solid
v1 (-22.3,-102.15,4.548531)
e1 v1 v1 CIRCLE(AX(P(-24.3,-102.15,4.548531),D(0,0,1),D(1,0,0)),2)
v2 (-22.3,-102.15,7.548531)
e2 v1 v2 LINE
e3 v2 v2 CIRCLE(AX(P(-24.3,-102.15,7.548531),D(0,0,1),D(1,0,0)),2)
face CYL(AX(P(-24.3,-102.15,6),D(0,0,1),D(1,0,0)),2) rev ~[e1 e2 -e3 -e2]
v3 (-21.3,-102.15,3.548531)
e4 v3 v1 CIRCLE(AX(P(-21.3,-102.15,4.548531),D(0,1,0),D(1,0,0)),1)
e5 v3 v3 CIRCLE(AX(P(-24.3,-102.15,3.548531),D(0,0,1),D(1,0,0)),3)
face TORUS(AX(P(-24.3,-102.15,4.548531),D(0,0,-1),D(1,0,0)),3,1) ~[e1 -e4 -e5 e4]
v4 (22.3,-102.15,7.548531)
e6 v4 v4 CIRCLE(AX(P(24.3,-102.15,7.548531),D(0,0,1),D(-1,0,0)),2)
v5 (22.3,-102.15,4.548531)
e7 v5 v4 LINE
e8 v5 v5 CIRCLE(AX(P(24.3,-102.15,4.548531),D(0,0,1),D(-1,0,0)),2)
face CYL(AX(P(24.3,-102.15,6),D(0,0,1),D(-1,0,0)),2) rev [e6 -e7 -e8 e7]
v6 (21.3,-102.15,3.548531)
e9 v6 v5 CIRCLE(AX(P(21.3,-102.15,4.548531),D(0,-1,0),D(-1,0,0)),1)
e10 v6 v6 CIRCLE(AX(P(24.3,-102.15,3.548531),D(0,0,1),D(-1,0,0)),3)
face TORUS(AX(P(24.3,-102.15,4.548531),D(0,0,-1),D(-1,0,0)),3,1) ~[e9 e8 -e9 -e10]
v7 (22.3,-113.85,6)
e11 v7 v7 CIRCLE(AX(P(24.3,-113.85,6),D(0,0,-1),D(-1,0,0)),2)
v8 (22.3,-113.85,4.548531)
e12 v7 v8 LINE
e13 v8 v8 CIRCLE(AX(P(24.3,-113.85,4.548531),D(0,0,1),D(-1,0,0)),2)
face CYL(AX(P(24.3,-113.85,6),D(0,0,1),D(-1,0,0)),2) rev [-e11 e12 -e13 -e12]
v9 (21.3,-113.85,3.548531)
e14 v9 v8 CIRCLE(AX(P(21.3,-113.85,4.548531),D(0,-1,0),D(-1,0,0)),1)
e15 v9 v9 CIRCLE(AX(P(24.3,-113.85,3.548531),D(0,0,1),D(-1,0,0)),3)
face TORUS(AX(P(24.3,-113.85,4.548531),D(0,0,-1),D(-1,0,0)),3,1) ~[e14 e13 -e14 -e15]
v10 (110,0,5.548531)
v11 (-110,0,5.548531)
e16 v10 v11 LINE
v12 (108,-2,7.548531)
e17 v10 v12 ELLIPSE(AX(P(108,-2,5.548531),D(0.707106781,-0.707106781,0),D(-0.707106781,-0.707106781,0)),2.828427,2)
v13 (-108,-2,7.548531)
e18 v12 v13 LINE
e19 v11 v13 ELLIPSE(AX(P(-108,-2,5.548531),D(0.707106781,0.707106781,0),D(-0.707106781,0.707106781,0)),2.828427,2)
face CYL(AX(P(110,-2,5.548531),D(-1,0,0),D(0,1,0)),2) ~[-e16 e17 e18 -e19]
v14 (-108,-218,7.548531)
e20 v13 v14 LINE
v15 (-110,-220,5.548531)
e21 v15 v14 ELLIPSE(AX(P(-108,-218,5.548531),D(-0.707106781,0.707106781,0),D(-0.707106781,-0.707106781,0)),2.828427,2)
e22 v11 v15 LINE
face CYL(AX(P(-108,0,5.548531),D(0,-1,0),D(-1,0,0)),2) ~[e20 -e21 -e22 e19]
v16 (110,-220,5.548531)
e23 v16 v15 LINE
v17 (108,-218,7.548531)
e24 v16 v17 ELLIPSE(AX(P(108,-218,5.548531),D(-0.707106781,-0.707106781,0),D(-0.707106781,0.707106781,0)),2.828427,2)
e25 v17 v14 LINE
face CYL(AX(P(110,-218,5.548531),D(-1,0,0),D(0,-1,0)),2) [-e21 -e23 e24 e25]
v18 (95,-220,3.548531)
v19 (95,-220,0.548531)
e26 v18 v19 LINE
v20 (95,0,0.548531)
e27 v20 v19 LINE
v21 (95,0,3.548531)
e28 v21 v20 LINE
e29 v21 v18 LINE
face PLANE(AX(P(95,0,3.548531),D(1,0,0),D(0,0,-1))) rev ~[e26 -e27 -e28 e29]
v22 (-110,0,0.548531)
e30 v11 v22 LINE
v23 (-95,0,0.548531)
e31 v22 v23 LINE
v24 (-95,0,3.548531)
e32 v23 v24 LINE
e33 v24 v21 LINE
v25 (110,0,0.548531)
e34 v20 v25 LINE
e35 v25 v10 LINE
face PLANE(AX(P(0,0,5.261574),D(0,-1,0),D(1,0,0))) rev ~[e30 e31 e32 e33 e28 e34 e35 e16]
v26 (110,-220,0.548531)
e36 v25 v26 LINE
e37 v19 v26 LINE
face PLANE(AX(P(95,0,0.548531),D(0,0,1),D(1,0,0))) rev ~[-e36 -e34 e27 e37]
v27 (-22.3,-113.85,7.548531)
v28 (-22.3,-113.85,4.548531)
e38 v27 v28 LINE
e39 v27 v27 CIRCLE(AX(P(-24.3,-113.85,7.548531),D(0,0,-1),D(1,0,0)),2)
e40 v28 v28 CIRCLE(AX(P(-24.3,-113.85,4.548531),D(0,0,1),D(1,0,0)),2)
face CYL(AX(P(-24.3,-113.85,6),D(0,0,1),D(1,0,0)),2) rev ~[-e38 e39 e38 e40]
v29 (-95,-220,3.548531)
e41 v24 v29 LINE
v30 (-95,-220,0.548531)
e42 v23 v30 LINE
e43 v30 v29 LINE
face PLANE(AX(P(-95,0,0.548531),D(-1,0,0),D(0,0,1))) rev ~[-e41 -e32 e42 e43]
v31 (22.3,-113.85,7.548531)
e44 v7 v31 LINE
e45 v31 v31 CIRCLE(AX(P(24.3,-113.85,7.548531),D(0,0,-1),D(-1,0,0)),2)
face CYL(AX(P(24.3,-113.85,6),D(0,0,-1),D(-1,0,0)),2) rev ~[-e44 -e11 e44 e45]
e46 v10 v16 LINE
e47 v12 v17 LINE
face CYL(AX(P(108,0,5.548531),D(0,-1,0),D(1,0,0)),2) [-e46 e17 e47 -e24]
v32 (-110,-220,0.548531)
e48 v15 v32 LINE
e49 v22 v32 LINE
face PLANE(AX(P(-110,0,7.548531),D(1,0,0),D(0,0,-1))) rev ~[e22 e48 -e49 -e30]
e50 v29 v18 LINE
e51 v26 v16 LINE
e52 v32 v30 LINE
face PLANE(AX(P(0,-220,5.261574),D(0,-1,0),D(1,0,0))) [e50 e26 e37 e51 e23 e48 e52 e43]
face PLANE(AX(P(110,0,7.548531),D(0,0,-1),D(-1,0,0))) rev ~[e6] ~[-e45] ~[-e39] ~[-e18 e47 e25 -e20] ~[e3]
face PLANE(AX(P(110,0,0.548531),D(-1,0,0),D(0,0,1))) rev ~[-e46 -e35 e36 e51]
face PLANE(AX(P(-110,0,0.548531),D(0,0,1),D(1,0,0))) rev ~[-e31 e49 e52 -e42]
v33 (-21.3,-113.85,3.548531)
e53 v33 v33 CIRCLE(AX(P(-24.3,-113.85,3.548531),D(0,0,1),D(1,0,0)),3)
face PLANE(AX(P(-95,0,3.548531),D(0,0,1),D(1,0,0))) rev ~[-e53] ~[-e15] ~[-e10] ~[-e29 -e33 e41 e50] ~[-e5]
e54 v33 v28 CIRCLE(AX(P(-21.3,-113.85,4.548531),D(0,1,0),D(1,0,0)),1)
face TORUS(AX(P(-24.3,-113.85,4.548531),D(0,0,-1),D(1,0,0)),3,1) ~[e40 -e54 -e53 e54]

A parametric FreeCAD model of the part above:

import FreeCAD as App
import Part
import Sketcher
Q = App.Units.Quantity


def edges_at(feature, points):
    """Names of the edges that pass closest to the given points."""
    edges = feature.Shape.Edges
    near = lambda p: min(range(len(edges)), key=lambda i: edges[i].distToShape(Part.Vertex(*p))[0])
    return sorted({f"Edge{near(p) + 1}" for p in points})


def add_polygon(sketch, points):
    """Adds a closed chain of lines whose ends are joined by coincident constraints."""
    first, n = sketch.GeometryCount, len(points)
    for a, b in zip(points, points[1:] + points[:1]):
        sketch.addGeometry(Part.LineSegment(App.Vector(*a, 0), App.Vector(*b, 0)), False)
    for i in range(n):
        sketch.addConstraint(Sketcher.Constraint("Coincident", first + i, 2, first + (i + 1) % n, 1))

doc = App.newDocument("Part")
params = doc.addObject("Spreadsheet::Sheet", "Params")
for row, (alias, value) in enumerate([
    ("sketch1_width", "190 mm"),
    ("sketch1_width2", "15 mm"),
    ("sketch1_height", "3 mm"),
    ("sketch1_height2", "7 mm"),
    ("pad1_length", "220 mm"),
    ("sketch2_diameter", "4 mm"),
    ("pocket1_length", "11 mm"),
    ("fillet_radius", "2 mm"),
    ("fillet2_radius", "1 mm"),
], start=1):
    params.set(f"A{row}", alias)
    params.set(f"B{row}", "=" + value)
    params.setAlias(f"B{row}", alias)

body = doc.addObject("PartDesign::Body", "Body")

# Sketch on XZ plane
sketch1 = body.newObject("Sketcher::SketchObject", "Sketch")
sketch1.AttachmentSupport = (doc.getObject("XZ_Plane"), [""])
sketch1.MapMode = "FlatFace"
add_polygon(sketch1, [(-95, 0.548531), (-95, 3.548531), (95, 3.548531), (95, 0.548531), (110, 0.548531), (110, 7.548531), (-110, 7.548531), (-110, 0.548531)])  # lines 0-7
sketch1.addConstraint([
    Sketcher.Constraint("Vertical", 0),
    Sketcher.Constraint("Horizontal", 1),
    Sketcher.Constraint("Vertical", 2),
    Sketcher.Constraint("Horizontal", 3),
    Sketcher.Constraint("Vertical", 4),
    Sketcher.Constraint("Horizontal", 5),
    Sketcher.Constraint("Vertical", 6),
    Sketcher.Constraint("Horizontal", 7),
    Sketcher.Constraint("Symmetric", 3, 2, 6, 2, -2),
    Sketcher.Constraint("Equal", 3, 7),
    Sketcher.Constraint("DistanceX", 1, 1, 1, 2, Q("190 mm")),
    Sketcher.Constraint("DistanceX", 3, 1, 3, 2, Q("15 mm")),
    Sketcher.Constraint("DistanceY", 0, 1, 0, 2, Q("3 mm")),
    Sketcher.Constraint("DistanceY", 4, 1, 4, 2, Q("7 mm")),
    Sketcher.Constraint("DistanceY", -1, 1, 0, 2, Q("3.548531 mm")),
])
sketch1.setExpression("Constraints[18]", "Params.sketch1_width")
sketch1.setExpression("Constraints[19]", "Params.sketch1_width2")
sketch1.setExpression("Constraints[20]", "Params.sketch1_height")
sketch1.setExpression("Constraints[21]", "Params.sketch1_height2")
pad1 = body.newObject("PartDesign::Pad", "Pad")
pad1.Profile = sketch1
pad1.setExpression("Length", "Params.pad1_length")

# Sketch on XY plane
sketch2 = body.newObject("Sketcher::SketchObject", "Sketch001")
sketch2.AttachmentSupport = (doc.getObject("XY_Plane"), [""])
sketch2.MapMode = "FlatFace"
sketch2.AttachmentOffset = App.Placement(App.Vector(0, 0, 6), App.Rotation())
sketch2.addGeometry([
    Part.Circle(App.Vector(-24.3, -113.85, 0), App.Vector(0, 0, 1), 2),
    Part.Circle(App.Vector(-24.3, -102.15, 0), App.Vector(0, 0, 1), 2),
], False)
sketch2.addConstraint([
    Sketcher.Constraint("Equal", 0, 1),
    Sketcher.Constraint("Vertical", 0, 3, 1, 3),
    Sketcher.Constraint("Diameter", 0, Q("4 mm")),
    Sketcher.Constraint("DistanceX", 0, 3, -1, 1, Q("24.3 mm")),
    Sketcher.Constraint("DistanceY", 0, 3, 1, 3, Q("11.7 mm")),
    Sketcher.Constraint("DistanceY", 0, 3, -1, 1, Q("113.85 mm")),
])
sketch2.setExpression("Constraints[2]", "Params.sketch2_diameter")
pocket1 = body.newObject("PartDesign::Pocket", "Pocket")
pocket1.Profile = sketch2
pocket1.setExpression("Length", "Params.pocket1_length")
pocket1.Midplane = True
doc.recompute()

mirrored = body.newObject("PartDesign::Mirrored", "Mirrored")
mirrored.Originals = [pocket1]
mirrored.MirrorPlane = (doc.getObject("YZ_Plane"), [""])
body.Tip = mirrored
doc.recompute()

fillet = body.newObject("PartDesign::Fillet", "Fillet")
fillet.Base = (mirrored, edges_at(mirrored, [
    (0, 0, 7.549),
    (-110, -110, 7.549),
    (0, -220, 7.549),
    (110, -110, 7.549),
]))
fillet.setExpression("Radius", "Params.fillet_radius")
doc.recompute()

fillet2 = body.newObject("PartDesign::Fillet", "Fillet001")
fillet2.Base = (fillet, edges_at(fillet, [
    (-26.3, -113.85, 3.549),
    (-26.3, -102.15, 3.549),
    (26.3, -113.85, 3.549),
    (26.3, -102.15, 3.549),
]))
fillet2.setExpression("Radius", "Params.fillet2_radius")

doc.recompute()
